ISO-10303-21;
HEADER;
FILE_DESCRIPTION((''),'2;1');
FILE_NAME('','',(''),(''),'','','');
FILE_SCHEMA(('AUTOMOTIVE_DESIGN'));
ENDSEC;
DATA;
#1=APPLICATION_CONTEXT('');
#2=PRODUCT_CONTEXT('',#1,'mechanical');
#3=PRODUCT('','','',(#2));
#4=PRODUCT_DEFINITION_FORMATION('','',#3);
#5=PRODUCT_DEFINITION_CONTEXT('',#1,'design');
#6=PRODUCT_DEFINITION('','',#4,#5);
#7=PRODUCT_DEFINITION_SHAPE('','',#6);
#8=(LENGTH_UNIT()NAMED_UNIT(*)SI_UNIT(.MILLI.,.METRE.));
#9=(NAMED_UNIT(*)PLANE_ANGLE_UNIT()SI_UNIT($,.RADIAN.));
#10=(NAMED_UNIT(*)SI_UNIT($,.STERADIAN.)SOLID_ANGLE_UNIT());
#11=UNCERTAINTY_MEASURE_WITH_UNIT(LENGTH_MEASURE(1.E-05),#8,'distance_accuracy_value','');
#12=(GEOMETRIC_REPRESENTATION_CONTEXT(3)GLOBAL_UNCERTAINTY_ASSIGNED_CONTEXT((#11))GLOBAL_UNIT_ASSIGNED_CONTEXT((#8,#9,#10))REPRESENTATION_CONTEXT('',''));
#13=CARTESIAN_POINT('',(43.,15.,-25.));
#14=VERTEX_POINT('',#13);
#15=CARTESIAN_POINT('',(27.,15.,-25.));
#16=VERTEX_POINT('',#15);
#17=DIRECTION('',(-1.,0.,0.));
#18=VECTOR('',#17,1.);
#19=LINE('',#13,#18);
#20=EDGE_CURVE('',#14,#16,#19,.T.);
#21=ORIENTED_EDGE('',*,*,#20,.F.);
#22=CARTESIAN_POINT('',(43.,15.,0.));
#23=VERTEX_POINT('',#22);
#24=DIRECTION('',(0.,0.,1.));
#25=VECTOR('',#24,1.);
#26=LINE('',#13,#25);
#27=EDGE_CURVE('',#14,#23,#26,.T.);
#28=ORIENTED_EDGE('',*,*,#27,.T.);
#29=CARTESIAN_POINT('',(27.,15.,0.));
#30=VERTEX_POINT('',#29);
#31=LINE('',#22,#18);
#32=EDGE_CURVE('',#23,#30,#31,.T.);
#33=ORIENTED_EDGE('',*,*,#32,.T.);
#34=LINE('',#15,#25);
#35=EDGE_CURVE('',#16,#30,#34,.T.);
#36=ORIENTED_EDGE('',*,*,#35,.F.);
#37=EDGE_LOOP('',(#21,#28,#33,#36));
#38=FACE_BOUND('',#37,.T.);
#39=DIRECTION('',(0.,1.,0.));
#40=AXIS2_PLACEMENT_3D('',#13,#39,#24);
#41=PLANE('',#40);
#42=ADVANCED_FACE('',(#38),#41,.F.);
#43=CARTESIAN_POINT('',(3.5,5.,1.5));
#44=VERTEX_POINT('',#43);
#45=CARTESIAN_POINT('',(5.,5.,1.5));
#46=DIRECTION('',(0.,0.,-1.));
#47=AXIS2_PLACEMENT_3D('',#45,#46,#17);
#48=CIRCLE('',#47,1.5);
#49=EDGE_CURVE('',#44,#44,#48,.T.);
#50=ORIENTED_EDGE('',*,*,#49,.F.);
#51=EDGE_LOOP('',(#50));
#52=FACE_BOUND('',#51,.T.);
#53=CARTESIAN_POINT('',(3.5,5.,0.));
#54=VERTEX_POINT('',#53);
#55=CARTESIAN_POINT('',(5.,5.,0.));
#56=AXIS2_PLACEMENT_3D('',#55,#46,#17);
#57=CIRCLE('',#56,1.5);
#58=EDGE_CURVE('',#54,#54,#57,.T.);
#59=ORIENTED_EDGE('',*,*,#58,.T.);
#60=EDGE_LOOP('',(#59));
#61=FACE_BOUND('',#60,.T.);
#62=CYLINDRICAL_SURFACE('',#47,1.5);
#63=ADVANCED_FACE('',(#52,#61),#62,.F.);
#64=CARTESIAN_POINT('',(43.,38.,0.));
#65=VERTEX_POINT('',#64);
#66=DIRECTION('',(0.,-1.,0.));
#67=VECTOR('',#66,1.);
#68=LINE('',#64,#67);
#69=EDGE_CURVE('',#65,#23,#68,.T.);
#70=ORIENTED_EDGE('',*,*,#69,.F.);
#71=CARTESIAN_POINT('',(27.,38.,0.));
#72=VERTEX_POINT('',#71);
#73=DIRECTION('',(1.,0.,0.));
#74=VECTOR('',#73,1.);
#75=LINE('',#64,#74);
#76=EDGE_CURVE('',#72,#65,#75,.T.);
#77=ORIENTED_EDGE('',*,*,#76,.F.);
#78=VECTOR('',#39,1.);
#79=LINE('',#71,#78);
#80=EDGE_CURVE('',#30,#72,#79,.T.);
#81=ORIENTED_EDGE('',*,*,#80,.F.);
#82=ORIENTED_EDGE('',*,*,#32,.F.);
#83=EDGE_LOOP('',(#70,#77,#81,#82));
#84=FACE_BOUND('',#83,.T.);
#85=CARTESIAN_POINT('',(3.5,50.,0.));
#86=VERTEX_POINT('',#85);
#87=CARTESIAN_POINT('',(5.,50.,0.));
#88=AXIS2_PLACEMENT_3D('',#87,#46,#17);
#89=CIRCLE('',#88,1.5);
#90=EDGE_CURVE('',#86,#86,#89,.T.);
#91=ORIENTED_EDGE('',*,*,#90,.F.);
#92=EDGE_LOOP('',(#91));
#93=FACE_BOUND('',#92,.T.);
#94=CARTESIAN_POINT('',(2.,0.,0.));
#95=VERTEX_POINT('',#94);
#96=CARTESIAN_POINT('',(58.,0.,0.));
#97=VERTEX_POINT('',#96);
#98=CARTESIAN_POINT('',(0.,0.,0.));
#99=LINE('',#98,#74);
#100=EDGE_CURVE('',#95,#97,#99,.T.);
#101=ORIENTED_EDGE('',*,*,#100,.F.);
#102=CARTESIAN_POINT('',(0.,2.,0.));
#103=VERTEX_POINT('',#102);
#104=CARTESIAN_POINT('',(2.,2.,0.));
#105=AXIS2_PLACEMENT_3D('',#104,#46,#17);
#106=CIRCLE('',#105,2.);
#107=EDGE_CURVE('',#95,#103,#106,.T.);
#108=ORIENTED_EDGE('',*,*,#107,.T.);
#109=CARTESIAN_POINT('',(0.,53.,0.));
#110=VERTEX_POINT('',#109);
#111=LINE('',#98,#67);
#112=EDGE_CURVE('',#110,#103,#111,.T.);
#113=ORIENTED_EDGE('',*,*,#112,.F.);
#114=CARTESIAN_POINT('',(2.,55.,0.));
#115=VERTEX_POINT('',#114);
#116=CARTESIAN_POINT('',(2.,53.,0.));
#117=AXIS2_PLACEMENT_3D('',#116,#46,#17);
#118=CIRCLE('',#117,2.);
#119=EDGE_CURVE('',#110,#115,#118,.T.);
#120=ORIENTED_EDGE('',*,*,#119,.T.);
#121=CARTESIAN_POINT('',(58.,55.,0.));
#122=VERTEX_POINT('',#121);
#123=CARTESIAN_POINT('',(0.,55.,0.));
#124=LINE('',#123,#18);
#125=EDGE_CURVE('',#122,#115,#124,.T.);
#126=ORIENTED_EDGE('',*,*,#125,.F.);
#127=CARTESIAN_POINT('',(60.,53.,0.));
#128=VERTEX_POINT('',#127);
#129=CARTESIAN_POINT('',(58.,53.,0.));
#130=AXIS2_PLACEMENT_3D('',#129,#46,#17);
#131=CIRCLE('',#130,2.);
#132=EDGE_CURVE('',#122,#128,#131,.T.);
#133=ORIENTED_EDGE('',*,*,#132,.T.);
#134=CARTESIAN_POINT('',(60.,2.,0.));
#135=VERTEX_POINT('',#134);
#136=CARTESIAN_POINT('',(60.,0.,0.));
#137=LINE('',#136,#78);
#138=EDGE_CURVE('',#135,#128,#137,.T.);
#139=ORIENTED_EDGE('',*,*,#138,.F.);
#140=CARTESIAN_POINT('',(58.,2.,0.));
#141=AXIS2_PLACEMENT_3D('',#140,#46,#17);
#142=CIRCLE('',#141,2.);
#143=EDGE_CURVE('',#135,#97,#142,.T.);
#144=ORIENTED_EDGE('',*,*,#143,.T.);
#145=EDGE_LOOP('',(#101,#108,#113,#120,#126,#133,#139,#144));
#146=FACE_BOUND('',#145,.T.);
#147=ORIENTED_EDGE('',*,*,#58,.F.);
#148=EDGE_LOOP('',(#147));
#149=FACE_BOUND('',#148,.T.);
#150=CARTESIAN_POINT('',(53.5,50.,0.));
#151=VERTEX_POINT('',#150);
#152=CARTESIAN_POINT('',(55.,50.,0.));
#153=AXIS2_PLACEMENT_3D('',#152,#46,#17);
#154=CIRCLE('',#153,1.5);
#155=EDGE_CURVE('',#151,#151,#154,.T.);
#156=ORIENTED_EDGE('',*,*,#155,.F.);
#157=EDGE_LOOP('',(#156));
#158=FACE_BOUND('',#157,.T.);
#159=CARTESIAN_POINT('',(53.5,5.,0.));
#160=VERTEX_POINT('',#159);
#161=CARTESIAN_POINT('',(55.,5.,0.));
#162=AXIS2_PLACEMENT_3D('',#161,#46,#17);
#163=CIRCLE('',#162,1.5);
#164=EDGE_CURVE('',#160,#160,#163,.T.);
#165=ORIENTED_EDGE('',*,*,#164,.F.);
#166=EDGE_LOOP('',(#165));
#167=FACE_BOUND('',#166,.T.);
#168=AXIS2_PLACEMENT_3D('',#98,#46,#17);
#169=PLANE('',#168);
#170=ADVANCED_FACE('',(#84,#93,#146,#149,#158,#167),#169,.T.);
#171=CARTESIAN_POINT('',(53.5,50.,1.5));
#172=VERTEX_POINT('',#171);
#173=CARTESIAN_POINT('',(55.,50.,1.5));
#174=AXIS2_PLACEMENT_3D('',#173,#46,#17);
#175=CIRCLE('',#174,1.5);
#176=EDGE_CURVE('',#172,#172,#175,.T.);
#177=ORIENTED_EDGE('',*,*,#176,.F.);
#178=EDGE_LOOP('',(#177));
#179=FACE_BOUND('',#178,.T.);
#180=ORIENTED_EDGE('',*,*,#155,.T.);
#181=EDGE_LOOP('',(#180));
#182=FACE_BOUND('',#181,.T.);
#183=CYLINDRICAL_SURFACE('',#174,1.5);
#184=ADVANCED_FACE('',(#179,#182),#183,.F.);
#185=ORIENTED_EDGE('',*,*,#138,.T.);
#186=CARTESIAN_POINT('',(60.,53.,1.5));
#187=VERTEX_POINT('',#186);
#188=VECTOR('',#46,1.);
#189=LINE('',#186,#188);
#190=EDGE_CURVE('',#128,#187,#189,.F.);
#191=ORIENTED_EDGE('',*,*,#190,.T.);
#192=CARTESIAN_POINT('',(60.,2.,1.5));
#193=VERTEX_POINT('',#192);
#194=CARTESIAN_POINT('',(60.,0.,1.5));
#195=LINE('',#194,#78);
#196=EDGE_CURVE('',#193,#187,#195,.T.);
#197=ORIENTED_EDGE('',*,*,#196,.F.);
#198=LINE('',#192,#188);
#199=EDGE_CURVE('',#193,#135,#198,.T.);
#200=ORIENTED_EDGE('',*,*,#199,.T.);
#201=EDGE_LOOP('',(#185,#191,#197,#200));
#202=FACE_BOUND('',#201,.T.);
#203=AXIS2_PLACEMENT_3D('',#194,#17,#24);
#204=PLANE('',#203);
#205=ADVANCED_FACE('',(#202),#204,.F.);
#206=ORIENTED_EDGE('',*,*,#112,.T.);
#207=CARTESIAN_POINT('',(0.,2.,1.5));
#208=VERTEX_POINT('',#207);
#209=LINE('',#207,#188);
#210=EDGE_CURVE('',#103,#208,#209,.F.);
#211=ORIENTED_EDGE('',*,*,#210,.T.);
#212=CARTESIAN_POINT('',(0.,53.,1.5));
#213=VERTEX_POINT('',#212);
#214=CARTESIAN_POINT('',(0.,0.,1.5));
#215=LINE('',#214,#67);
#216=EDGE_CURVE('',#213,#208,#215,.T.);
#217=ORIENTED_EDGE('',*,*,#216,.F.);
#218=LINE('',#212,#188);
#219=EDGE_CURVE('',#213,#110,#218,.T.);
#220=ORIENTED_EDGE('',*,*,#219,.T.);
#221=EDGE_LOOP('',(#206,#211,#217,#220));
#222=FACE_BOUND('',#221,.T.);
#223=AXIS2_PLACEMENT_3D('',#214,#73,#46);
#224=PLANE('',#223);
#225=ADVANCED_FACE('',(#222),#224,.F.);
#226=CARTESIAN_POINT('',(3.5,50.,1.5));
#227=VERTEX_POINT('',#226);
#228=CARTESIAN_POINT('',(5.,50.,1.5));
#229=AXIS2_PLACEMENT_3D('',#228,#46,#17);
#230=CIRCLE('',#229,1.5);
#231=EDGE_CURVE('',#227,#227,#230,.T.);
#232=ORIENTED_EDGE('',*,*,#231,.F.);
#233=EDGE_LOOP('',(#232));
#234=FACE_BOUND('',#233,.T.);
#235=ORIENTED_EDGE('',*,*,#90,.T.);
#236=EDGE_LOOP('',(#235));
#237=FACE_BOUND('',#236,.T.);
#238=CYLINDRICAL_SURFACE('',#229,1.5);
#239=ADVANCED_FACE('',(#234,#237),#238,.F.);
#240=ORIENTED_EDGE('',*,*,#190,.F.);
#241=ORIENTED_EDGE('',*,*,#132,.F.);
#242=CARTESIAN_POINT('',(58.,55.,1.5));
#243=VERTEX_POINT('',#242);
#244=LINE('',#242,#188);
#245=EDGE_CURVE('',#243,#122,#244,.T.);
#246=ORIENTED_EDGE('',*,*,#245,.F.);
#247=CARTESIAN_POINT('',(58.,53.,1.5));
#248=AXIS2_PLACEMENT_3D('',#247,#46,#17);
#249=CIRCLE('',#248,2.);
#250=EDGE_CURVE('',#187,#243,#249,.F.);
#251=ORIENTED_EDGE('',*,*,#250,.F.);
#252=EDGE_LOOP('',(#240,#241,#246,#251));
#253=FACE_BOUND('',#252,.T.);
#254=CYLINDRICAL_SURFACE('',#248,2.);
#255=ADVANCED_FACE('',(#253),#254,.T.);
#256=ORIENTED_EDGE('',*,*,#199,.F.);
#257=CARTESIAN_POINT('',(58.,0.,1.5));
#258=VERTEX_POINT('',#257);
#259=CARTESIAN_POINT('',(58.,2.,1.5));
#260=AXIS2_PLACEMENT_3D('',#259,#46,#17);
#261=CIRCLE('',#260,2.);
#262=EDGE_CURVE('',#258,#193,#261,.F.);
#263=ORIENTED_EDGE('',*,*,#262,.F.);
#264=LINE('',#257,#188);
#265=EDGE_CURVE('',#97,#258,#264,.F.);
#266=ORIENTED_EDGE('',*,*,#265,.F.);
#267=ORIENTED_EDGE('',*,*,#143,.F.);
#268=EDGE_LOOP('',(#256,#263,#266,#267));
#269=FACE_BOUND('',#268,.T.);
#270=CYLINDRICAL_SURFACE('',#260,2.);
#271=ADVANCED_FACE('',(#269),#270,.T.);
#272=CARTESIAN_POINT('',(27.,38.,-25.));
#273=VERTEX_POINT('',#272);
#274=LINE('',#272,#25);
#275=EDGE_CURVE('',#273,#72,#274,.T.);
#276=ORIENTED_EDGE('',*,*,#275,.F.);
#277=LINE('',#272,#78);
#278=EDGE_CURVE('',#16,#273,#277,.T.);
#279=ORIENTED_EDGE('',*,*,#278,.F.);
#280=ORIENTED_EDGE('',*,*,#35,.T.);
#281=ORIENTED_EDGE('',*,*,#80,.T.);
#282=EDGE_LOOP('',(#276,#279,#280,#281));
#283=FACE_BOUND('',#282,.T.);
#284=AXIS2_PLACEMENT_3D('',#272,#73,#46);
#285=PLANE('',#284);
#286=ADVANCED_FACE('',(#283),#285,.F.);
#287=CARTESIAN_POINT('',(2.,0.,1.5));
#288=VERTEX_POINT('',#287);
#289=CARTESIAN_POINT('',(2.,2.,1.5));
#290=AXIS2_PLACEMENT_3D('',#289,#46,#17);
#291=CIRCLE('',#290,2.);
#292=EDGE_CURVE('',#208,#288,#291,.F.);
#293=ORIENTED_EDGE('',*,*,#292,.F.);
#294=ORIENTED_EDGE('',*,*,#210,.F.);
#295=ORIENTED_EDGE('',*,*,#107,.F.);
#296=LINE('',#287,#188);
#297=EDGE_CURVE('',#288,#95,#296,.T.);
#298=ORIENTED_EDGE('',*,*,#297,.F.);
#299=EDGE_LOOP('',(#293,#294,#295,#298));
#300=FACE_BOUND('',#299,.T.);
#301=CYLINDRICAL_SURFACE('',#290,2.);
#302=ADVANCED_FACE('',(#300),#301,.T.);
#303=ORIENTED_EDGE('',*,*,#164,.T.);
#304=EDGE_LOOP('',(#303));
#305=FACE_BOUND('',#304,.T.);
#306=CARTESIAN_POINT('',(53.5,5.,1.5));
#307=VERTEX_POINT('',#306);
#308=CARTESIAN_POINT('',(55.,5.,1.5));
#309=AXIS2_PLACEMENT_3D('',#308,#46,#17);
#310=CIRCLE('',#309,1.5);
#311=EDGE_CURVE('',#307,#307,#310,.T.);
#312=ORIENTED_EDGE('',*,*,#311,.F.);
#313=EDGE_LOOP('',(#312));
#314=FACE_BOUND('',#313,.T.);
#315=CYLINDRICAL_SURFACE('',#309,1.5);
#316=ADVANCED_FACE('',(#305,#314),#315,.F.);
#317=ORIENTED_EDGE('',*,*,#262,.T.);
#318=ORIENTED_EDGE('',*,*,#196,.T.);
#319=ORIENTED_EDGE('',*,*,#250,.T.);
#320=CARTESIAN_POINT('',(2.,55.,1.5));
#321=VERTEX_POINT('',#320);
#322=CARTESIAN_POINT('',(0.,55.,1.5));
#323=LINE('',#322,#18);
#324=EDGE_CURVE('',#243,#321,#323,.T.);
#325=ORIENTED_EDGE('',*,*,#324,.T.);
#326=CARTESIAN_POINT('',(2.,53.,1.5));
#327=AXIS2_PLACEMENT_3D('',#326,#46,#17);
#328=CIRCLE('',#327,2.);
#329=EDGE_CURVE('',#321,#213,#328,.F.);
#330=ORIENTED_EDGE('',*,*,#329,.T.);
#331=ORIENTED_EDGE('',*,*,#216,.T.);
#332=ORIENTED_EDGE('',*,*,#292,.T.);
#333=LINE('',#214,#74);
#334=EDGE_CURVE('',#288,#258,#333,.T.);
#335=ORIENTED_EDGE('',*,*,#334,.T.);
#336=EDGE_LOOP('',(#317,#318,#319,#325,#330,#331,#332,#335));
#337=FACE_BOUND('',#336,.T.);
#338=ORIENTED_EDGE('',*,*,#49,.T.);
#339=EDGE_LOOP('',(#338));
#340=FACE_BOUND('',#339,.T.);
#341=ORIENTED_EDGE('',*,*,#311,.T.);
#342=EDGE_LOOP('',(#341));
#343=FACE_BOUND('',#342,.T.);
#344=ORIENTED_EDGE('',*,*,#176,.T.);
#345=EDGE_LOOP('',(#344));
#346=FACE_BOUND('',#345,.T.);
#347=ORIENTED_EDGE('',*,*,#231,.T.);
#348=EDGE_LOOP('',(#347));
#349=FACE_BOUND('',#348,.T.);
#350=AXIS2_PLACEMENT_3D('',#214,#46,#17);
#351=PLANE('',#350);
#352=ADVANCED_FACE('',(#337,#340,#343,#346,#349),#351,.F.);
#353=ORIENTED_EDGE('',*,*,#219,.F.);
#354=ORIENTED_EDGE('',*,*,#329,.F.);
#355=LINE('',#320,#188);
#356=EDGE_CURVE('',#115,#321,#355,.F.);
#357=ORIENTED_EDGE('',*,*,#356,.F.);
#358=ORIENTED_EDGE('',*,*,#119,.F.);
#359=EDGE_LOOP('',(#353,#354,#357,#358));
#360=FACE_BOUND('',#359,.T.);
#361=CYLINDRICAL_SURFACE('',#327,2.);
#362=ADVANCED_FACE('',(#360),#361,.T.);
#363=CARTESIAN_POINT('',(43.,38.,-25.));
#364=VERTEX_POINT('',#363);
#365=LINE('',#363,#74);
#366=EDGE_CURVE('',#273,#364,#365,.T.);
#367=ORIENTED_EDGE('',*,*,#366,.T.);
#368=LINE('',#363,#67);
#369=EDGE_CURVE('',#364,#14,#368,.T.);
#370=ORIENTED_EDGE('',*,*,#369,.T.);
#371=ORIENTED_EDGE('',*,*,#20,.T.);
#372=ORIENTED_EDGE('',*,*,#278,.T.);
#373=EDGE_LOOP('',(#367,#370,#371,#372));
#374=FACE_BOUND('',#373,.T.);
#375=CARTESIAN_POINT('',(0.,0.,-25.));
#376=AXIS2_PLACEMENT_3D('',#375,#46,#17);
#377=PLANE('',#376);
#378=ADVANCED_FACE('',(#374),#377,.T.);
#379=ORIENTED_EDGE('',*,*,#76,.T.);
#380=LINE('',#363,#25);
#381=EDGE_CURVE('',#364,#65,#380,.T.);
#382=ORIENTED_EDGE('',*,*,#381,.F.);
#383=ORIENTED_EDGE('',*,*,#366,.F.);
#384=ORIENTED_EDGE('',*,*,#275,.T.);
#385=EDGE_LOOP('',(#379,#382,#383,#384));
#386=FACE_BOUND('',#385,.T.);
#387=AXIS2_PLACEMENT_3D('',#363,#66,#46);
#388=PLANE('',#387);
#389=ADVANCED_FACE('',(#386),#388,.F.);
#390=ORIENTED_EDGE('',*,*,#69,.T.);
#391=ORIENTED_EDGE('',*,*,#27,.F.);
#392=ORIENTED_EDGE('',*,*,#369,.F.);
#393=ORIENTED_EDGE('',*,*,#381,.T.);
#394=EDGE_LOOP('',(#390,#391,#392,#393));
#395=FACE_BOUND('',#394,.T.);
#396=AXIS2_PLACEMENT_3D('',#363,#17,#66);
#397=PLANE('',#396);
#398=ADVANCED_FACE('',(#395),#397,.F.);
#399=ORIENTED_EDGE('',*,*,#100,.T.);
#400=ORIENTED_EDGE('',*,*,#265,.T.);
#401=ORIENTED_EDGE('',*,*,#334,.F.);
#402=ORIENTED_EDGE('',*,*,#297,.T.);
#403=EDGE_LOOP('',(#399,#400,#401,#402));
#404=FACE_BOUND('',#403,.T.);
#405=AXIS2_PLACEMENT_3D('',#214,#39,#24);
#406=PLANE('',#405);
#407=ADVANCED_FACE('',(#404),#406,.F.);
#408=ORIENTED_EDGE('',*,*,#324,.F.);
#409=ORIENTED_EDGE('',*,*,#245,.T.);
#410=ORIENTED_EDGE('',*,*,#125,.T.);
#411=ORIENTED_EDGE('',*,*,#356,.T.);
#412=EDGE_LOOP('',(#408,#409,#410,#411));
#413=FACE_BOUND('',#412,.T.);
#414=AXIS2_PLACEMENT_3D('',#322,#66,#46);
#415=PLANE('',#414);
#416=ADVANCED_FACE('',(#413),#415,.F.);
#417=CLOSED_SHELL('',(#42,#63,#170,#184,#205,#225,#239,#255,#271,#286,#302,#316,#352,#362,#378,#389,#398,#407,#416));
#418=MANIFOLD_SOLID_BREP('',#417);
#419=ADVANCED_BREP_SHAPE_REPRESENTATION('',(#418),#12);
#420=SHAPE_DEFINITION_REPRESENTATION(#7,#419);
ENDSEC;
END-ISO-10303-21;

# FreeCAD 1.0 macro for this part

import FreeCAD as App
import Part
import Sketcher
Q = App.Units.Quantity


def edges_at(feature, points):
    """Names of the edges that pass closest to the given points."""
    edges = feature.Shape.Edges
    near = lambda p: min(range(len(edges)), key=lambda i: edges[i].distToShape(Part.Vertex(*p))[0])
    return sorted({f"Edge{near(p) + 1}" for p in points})

doc = App.newDocument("Part")
body = doc.addObject("PartDesign::Body", "Body")

# Sketch on XY plane
sketch1 = doc.addObject("Sketcher::SketchObject", "Sketch")
body.addObject(sketch1)
sketch1.AttachmentSupport = (doc.XY_Plane, [""])
sketch1.MapMode = "FlatFace"
sketch1.addGeometry([
    Part.LineSegment(App.Vector(0, 55, 0), App.Vector(0, 0, 0)),
    Part.LineSegment(App.Vector(0, 0, 0), App.Vector(60, 0, 0)),
    Part.LineSegment(App.Vector(60, 0, 0), App.Vector(60, 55, 0)),
    Part.LineSegment(App.Vector(60, 55, 0), App.Vector(0, 55, 0)),
], False)
sketch1.addConstraint([
    Sketcher.Constraint("Coincident", 0, 2, 1, 1),
    Sketcher.Constraint("Coincident", 1, 2, 2, 1),
    Sketcher.Constraint("Coincident", 2, 2, 3, 1),
    Sketcher.Constraint("Coincident", 3, 2, 0, 1),
    Sketcher.Constraint("Vertical", 0),
    Sketcher.Constraint("Horizontal", 1),
    Sketcher.Constraint("Vertical", 2),
    Sketcher.Constraint("Horizontal", 3),
    Sketcher.Constraint("Coincident", 0, 2, -1, 1),
    Sketcher.Constraint("DistanceX", 1, 1, 1, 2, Q("60 mm")),
    Sketcher.Constraint("DistanceY", 0, 2, 0, 1, Q("55 mm")),
])
pad1 = doc.addObject("PartDesign::Pad", "Pad")
body.addObject(pad1)
pad1.Profile = sketch1
pad1.Length = 1.5
doc.recompute()

fillet = doc.addObject("PartDesign::Fillet", "Fillet")
body.addObject(fillet)
fillet.Base = (pad1, edges_at(pad1, [
    (0, 55, 0.75),
    (60, 55, 0.75),
    (60, 0, 0.75),
    (0, 0, 0.75),
]))
fillet.Radius = 2

# Sketch on XY plane
sketch2 = doc.addObject("Sketcher::SketchObject", "Sketch001")
body.addObject(sketch2)
sketch2.AttachmentSupport = (doc.XY_Plane, [""])
sketch2.MapMode = "FlatFace"
sketch2.addGeometry([
    Part.Circle(App.Vector(5, 5, 0), App.Vector(0, 0, 1), 1.5),
    Part.Circle(App.Vector(5, 50, 0), App.Vector(0, 0, 1), 1.5),
    Part.Circle(App.Vector(55, 50, 0), App.Vector(0, 0, 1), 1.5),
    Part.Circle(App.Vector(55, 5, 0), App.Vector(0, 0, 1), 1.5),
], False)
sketch2.addConstraint([
    Sketcher.Constraint("Equal", 0, 1),
    Sketcher.Constraint("Equal", 1, 2),
    Sketcher.Constraint("Equal", 2, 3),
    Sketcher.Constraint("Horizontal", 1, 3, 2, 3),
    Sketcher.Constraint("Horizontal", 0, 3, 3, 3),
    Sketcher.Constraint("Vertical", 0, 3, 1, 3),
    Sketcher.Constraint("Vertical", 2, 3, 3, 3),
    Sketcher.Constraint("Diameter", 0, Q("3 mm")),
    Sketcher.Constraint("DistanceX", -1, 1, 0, 3, Q("5 mm")),
    Sketcher.Constraint("DistanceY", -1, 1, 0, 3, Q("5 mm")),
    Sketcher.Constraint("DistanceY", -1, 1, 1, 3, Q("50 mm")),
    Sketcher.Constraint("DistanceX", -1, 1, 2, 3, Q("55 mm")),
])
pocket1 = doc.addObject("PartDesign::Pocket", "Pocket")
body.addObject(pocket1)
pocket1.Profile = sketch2
pocket1.Length = 1.5
pocket1.Reversed = True

# Sketch on XY plane
sketch3 = doc.addObject("Sketcher::SketchObject", "Sketch002")
body.addObject(sketch3)
sketch3.AttachmentSupport = (doc.XY_Plane, [""])
sketch3.MapMode = "FlatFace"
sketch3.addGeometry([
    Part.LineSegment(App.Vector(43, 38, 0), App.Vector(43, 15, 0)),
    Part.LineSegment(App.Vector(43, 15, 0), App.Vector(27, 15, 0)),
    Part.LineSegment(App.Vector(27, 15, 0), App.Vector(27, 38, 0)),
    Part.LineSegment(App.Vector(27, 38, 0), App.Vector(43, 38, 0)),
], False)
sketch3.addConstraint([
    Sketcher.Constraint("Coincident", 0, 2, 1, 1),
    Sketcher.Constraint("Coincident", 1, 2, 2, 1),
    Sketcher.Constraint("Coincident", 2, 2, 3, 1),
    Sketcher.Constraint("Coincident", 3, 2, 0, 1),
    Sketcher.Constraint("Vertical", 0),
    Sketcher.Constraint("Horizontal", 1),
    Sketcher.Constraint("Vertical", 2),
    Sketcher.Constraint("Horizontal", 3),
    Sketcher.Constraint("DistanceX", 1, 2, 1, 1, Q("16 mm")),
    Sketcher.Constraint("DistanceY", 0, 2, 0, 1, Q("23 mm")),
    Sketcher.Constraint("DistanceX", -1, 1, 0, 2, Q("43 mm")),
    Sketcher.Constraint("DistanceY", -1, 1, 0, 2, Q("15 mm")),
])
pad2 = doc.addObject("PartDesign::Pad", "Pad001")
body.addObject(pad2)
pad2.Profile = sketch3
pad2.Length = 25
pad2.Reversed = True

doc.recompute()
